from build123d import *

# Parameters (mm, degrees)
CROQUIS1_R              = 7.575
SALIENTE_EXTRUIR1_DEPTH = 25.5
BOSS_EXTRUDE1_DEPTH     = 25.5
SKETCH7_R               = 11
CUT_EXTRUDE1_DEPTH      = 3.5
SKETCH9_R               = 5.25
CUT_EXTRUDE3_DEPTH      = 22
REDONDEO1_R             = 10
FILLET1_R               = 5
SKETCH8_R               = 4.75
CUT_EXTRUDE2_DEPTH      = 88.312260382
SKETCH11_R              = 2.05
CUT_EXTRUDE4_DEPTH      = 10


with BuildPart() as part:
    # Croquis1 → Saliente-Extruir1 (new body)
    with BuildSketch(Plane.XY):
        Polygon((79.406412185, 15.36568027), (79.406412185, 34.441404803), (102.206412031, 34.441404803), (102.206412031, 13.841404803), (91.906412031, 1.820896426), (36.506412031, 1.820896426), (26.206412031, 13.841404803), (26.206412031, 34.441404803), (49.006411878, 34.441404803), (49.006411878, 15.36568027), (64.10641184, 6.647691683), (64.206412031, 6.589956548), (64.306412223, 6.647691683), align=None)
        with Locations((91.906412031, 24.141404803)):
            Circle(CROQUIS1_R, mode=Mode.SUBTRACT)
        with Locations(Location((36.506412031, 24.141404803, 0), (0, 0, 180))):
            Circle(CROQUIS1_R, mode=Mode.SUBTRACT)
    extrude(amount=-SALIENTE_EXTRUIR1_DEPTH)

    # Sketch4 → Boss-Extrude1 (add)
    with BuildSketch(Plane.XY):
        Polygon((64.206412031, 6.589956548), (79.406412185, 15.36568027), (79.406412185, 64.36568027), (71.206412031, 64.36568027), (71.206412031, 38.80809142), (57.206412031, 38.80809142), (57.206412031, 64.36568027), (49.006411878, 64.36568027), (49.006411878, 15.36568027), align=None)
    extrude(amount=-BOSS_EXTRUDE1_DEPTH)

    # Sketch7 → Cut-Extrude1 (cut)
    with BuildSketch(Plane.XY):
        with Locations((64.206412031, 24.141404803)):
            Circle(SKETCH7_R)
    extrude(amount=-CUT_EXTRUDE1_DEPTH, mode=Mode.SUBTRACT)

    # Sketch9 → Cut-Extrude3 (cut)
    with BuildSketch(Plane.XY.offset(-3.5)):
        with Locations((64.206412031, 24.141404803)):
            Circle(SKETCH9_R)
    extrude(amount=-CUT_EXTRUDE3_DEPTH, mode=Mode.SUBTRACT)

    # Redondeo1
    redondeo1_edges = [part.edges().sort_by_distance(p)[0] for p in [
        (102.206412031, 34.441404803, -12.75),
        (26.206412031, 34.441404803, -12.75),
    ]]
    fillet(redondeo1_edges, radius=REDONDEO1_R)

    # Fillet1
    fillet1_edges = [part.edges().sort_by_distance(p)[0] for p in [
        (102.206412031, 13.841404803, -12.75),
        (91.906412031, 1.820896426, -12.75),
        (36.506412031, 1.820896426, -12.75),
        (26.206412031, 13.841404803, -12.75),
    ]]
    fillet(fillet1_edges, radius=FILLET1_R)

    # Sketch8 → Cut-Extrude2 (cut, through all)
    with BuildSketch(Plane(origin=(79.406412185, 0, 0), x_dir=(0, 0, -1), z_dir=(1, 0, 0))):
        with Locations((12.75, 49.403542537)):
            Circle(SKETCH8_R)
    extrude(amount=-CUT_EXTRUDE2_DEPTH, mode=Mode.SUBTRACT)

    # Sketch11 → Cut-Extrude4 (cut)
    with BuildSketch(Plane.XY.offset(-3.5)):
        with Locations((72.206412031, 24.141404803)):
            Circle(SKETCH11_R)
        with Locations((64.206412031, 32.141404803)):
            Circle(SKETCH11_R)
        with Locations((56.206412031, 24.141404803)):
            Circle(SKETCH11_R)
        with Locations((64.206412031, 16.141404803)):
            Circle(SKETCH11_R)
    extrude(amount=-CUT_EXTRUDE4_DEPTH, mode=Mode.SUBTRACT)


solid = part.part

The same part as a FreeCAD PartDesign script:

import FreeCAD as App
import Part
import Sketcher

V = App.Vector
Q = App.Units.Quantity


def edges_at(feature, points):
    """Names of the edges that pass closest to the given points."""
    edges = feature.Shape.Edges
    near = lambda p: min(range(len(edges)), key=lambda i: edges[i].distToShape(Part.Vertex(*p))[0])
    return sorted({f"Edge{near(p) + 1}" for p in points})


def add_polygon(sketch, points):
    """Adds a closed chain of lines whose ends are joined by coincident constraints."""
    first, n = sketch.GeometryCount, len(points)
    for a, b in zip(points, points[1:] + points[:1]):
        sketch.addGeometry(Part.LineSegment(App.Vector(*a, 0), App.Vector(*b, 0)), False)
    for i in range(n):
        sketch.addConstraint(Sketcher.Constraint("Coincident", first + i, 2, first + (i + 1) % n, 1))

doc = App.newDocument("Part")
body = doc.addObject("PartDesign::Body", "Body")

sketch1 = body.newObject("Sketcher::SketchObject", "Sketch")
sketch1.AttachmentSupport = (doc.getObject("XY_Plane"), [""])
sketch1.MapMode = "FlatFace"
add_polygon(sketch1, [(79.41, 34.44), (79.41, 15.37), (64.31, 6.65), (64.21, 6.59), (64.11, 6.65), (49.01, 15.37), (49.01, 34.44), (26.21, 34.44), (26.21, 13.84), (36.51, 1.82), (91.91, 1.82), (102.21, 13.84), (102.21, 34.44)])
sketch1.addGeometry(Part.Circle(V(91.91, 24.14, 0), V(0, 0, 1), 7.58), False)
sketch1.addGeometry(Part.Circle(V(36.51, 24.14, 0), V(0, 0, 1), 7.58), False)
sketch1.addConstraint([
    Sketcher.Constraint("Vertical", 0),
    Sketcher.Constraint("Vertical", 5),
    Sketcher.Constraint("Horizontal", 6),
    Sketcher.Constraint("Vertical", 7),
    Sketcher.Constraint("Horizontal", 9),
    Sketcher.Constraint("Vertical", 11),
    Sketcher.Constraint("Horizontal", 12),
    Sketcher.Constraint("Equal", 13, 14),
    Sketcher.Constraint("Parallel", 1, 2),
    Sketcher.Constraint("Parallel", 3, 4),
    Sketcher.Constraint("Horizontal", 13, 3, 14, 3),
    Sketcher.Constraint("Horizontal", 1, 2, 3, 2),
    Sketcher.Constraint("Horizontal", 0, 2, 4, 2),
    Sketcher.Constraint("Horizontal", 7, 2, 10, 2),
    Sketcher.Constraint("Horizontal", 6, 2, 11, 2),
    Sketcher.Constraint("Vertical", 14, 3, 8, 2),
    Sketcher.Constraint("Vertical", 13, 3, 9, 2),
    Sketcher.Constraint("Equal", 6, 12),
    Sketcher.Constraint("Equal", 2, 3),
    Sketcher.Constraint("Equal", 8, 10),
    Sketcher.Constraint("Diameter", 13, 15.15),
    Sketcher.Constraint("Angle", 1, Q("-150.000001 deg")),
    Sketcher.Constraint("DistanceX", 6, 2, 6, 1, 22.8),
    Sketcher.Constraint("DistanceX", 9, 1, 9, 2, 55.4),
    Sketcher.Constraint("DistanceY", 7, 2, 7, 1, 20.6),
    Sketcher.Constraint("DistanceX", 6, 2, 2, 2, 38.0),
    Sketcher.Constraint("DistanceX", 1, 2, 0, 2, 15.1),
    Sketcher.Constraint("DistanceY", 14, 3, 5, 2, 10.3),
    Sketcher.Constraint("Distance", 8, 15.829802),
    Sketcher.Constraint("DistanceY", 0, 2, 0, 1, 19.075725),
    Sketcher.Constraint("DistanceY", -1, 1, 0, 2, 15.36568),
    Sketcher.Constraint("DistanceX", -1, 1, 3, 2, 64.106412),
])
pad1 = body.newObject("PartDesign::Pad", "Pad")
pad1.Profile = sketch1
pad1.Length = 25.5
pad1.Reversed = True

sketch2 = body.newObject("Sketcher::SketchObject", "Sketch001")
sketch2.AttachmentSupport = (doc.getObject("XY_Plane"), [""])
sketch2.MapMode = "FlatFace"
add_polygon(sketch2, [(64, 7), (79, 15), (79, 64), (71, 64), (71, 39), (57, 39), (57, 64), (49, 64), (49, 15)])
sketch2.addConstraint([
    Sketcher.Constraint("Vertical", 1),
    Sketcher.Constraint("Horizontal", 2),
    Sketcher.Constraint("Vertical", 3),
    Sketcher.Constraint("Horizontal", 4),
    Sketcher.Constraint("Vertical", 5),
    Sketcher.Constraint("Horizontal", 6),
    Sketcher.Constraint("Vertical", 7),
    Sketcher.Constraint("Horizontal", 2, 2, 5, 2),
    Sketcher.Constraint("Horizontal", 0, 2, 7, 2),
    Sketcher.Constraint("Equal", 2, 6),
    Sketcher.Constraint("Equal", 0, 8),
    Sketcher.Constraint("DistanceX", 4, 2, 4, 1, 14.0),
    Sketcher.Constraint("DistanceY", 1, 1, 1, 2, 49.0),
    Sketcher.Constraint("Angle", 0, Q("29.999999 deg")),
    Sketcher.Constraint("DistanceX", 2, 2, 2, 1, 8.2),
    Sketcher.Constraint("DistanceY", 3, 2, 3, 1, 25.557589),
    Sketcher.Constraint("DistanceY", -1, 1, 0, 2, 15.36568),
    Sketcher.Constraint("DistanceX", -1, 1, 6, 2, 49.006412),
])
pad2 = body.newObject("PartDesign::Pad", "Pad001")
pad2.Profile = sketch2
pad2.Length = 25.5
pad2.Reversed = True

sketch3 = body.newObject("Sketcher::SketchObject", "Sketch002")
sketch3.AttachmentSupport = (doc.getObject("XY_Plane"), [""])
sketch3.MapMode = "FlatFace"
sketch3.addGeometry(Part.Circle(V(64, 24, 0), V(0, 0, 1), 11), False)
sketch3.addConstraint([
    Sketcher.Constraint("Diameter", 0, 22.0),
    Sketcher.Constraint("DistanceX", -1, 1, 0, 3, 64.206412),
    Sketcher.Constraint("DistanceY", -1, 1, 0, 3, 24.141405),
])
pocket1 = body.newObject("PartDesign::Pocket", "Pocket")
pocket1.Profile = sketch3
pocket1.Length = 3.5

sketch4 = body.newObject("Sketcher::SketchObject", "Sketch003")
sketch4.AttachmentSupport = (doc.getObject("XY_Plane"), [""])
sketch4.MapMode = "FlatFace"
sketch4.AttachmentOffset = App.Placement(V(0, 0, -3.5), App.Rotation())
sketch4.addGeometry(Part.Circle(V(64, 24, 0), V(0, 0, 1), 5), False)
sketch4.addConstraint([
    Sketcher.Constraint("Diameter", 0, 10.5),
    Sketcher.Constraint("DistanceX", -1, 1, 0, 3, 64.206412),
    Sketcher.Constraint("DistanceY", -1, 1, 0, 3, 24.141405),
])
pocket2 = body.newObject("PartDesign::Pocket", "Pocket001")
pocket2.Profile = sketch4
pocket2.Length = 22
doc.recompute()

fillet = body.newObject("PartDesign::Fillet", "Fillet")
fillet.Base = (pocket2, edges_at(pocket2, [(102.206, 34.441, -12.75), (26.206, 34.441, -12.75)]))
fillet.Radius = 10
doc.recompute()

fillet2 = body.newObject("PartDesign::Fillet", "Fillet001")
fillet2.Base = (fillet, edges_at(fillet, [
    (102.206, 13.841, -12.75),
    (91.906, 1.821, -12.75),
    (36.506, 1.821, -12.75),
    (26.206, 13.841, -12.75),
]))
fillet2.Radius = 5

sketch5 = body.newObject("Sketcher::SketchObject", "Sketch004")
sketch5.AttachmentSupport = (doc.getObject("YZ_Plane"), [""])
sketch5.MapMode = "FlatFace"
sketch5.AttachmentOffset = App.Placement(V(0, 0, 79.406412), App.Rotation())
sketch5.addGeometry(Part.Circle(V(49.4, -12.8, 0), V(0, 0, 1), 4.8), False)
sketch5.addConstraint([
    Sketcher.Constraint("Diameter", 0, 9.5),
    Sketcher.Constraint("DistanceY", 0, 3, -1, 1, 12.75),
    Sketcher.Constraint("DistanceX", -1, 1, 0, 3, 49.403543),
])
pocket3 = body.newObject("PartDesign::Pocket", "Pocket002")
pocket3.Profile = sketch5
pocket3.Type = "ThroughAll"

sketch6 = body.newObject("Sketcher::SketchObject", "Sketch005")
sketch6.AttachmentSupport = (doc.getObject("XY_Plane"), [""])
sketch6.MapMode = "FlatFace"
sketch6.AttachmentOffset = App.Placement(V(0, 0, -3.5), App.Rotation())
sketch6.addGeometry([
    Part.Circle(V(72.2, 24.1, 0), V(0, 0, 1), 2),
    Part.Circle(V(64.2, 32.1, 0), V(0, 0, 1), 2),
    Part.Circle(V(56.2, 24.1, 0), V(0, 0, 1), 2),
    Part.Circle(V(64.2, 16.1, 0), V(0, 0, 1), 2),
], False)
sketch6.addConstraint([
    Sketcher.Constraint("Equal", 0, 1),
    Sketcher.Constraint("Equal", 1, 2),
    Sketcher.Constraint("Equal", 2, 3),
    Sketcher.Constraint("Horizontal", 0, 3, 2, 3),
    Sketcher.Constraint("Vertical", 1, 3, 3, 3),
    Sketcher.Constraint("Diameter", 0, 4.1),
    Sketcher.Constraint("DistanceX", 1, 3, 0, 3, 8.0),
    Sketcher.Constraint("DistanceY", 0, 3, 1, 3, 8.0),
    Sketcher.Constraint("DistanceX", 2, 3, 1, 3, 8.0),
    Sketcher.Constraint("DistanceY", 3, 3, 0, 3, 8.0),
    Sketcher.Constraint("DistanceX", -1, 1, 0, 3, 72.206412),
    Sketcher.Constraint("DistanceY", -1, 1, 0, 3, 24.141405),
])
pocket4 = body.newObject("PartDesign::Pocket", "Pocket003")
pocket4.Profile = sketch6
pocket4.Length = 10

doc.recompute()
